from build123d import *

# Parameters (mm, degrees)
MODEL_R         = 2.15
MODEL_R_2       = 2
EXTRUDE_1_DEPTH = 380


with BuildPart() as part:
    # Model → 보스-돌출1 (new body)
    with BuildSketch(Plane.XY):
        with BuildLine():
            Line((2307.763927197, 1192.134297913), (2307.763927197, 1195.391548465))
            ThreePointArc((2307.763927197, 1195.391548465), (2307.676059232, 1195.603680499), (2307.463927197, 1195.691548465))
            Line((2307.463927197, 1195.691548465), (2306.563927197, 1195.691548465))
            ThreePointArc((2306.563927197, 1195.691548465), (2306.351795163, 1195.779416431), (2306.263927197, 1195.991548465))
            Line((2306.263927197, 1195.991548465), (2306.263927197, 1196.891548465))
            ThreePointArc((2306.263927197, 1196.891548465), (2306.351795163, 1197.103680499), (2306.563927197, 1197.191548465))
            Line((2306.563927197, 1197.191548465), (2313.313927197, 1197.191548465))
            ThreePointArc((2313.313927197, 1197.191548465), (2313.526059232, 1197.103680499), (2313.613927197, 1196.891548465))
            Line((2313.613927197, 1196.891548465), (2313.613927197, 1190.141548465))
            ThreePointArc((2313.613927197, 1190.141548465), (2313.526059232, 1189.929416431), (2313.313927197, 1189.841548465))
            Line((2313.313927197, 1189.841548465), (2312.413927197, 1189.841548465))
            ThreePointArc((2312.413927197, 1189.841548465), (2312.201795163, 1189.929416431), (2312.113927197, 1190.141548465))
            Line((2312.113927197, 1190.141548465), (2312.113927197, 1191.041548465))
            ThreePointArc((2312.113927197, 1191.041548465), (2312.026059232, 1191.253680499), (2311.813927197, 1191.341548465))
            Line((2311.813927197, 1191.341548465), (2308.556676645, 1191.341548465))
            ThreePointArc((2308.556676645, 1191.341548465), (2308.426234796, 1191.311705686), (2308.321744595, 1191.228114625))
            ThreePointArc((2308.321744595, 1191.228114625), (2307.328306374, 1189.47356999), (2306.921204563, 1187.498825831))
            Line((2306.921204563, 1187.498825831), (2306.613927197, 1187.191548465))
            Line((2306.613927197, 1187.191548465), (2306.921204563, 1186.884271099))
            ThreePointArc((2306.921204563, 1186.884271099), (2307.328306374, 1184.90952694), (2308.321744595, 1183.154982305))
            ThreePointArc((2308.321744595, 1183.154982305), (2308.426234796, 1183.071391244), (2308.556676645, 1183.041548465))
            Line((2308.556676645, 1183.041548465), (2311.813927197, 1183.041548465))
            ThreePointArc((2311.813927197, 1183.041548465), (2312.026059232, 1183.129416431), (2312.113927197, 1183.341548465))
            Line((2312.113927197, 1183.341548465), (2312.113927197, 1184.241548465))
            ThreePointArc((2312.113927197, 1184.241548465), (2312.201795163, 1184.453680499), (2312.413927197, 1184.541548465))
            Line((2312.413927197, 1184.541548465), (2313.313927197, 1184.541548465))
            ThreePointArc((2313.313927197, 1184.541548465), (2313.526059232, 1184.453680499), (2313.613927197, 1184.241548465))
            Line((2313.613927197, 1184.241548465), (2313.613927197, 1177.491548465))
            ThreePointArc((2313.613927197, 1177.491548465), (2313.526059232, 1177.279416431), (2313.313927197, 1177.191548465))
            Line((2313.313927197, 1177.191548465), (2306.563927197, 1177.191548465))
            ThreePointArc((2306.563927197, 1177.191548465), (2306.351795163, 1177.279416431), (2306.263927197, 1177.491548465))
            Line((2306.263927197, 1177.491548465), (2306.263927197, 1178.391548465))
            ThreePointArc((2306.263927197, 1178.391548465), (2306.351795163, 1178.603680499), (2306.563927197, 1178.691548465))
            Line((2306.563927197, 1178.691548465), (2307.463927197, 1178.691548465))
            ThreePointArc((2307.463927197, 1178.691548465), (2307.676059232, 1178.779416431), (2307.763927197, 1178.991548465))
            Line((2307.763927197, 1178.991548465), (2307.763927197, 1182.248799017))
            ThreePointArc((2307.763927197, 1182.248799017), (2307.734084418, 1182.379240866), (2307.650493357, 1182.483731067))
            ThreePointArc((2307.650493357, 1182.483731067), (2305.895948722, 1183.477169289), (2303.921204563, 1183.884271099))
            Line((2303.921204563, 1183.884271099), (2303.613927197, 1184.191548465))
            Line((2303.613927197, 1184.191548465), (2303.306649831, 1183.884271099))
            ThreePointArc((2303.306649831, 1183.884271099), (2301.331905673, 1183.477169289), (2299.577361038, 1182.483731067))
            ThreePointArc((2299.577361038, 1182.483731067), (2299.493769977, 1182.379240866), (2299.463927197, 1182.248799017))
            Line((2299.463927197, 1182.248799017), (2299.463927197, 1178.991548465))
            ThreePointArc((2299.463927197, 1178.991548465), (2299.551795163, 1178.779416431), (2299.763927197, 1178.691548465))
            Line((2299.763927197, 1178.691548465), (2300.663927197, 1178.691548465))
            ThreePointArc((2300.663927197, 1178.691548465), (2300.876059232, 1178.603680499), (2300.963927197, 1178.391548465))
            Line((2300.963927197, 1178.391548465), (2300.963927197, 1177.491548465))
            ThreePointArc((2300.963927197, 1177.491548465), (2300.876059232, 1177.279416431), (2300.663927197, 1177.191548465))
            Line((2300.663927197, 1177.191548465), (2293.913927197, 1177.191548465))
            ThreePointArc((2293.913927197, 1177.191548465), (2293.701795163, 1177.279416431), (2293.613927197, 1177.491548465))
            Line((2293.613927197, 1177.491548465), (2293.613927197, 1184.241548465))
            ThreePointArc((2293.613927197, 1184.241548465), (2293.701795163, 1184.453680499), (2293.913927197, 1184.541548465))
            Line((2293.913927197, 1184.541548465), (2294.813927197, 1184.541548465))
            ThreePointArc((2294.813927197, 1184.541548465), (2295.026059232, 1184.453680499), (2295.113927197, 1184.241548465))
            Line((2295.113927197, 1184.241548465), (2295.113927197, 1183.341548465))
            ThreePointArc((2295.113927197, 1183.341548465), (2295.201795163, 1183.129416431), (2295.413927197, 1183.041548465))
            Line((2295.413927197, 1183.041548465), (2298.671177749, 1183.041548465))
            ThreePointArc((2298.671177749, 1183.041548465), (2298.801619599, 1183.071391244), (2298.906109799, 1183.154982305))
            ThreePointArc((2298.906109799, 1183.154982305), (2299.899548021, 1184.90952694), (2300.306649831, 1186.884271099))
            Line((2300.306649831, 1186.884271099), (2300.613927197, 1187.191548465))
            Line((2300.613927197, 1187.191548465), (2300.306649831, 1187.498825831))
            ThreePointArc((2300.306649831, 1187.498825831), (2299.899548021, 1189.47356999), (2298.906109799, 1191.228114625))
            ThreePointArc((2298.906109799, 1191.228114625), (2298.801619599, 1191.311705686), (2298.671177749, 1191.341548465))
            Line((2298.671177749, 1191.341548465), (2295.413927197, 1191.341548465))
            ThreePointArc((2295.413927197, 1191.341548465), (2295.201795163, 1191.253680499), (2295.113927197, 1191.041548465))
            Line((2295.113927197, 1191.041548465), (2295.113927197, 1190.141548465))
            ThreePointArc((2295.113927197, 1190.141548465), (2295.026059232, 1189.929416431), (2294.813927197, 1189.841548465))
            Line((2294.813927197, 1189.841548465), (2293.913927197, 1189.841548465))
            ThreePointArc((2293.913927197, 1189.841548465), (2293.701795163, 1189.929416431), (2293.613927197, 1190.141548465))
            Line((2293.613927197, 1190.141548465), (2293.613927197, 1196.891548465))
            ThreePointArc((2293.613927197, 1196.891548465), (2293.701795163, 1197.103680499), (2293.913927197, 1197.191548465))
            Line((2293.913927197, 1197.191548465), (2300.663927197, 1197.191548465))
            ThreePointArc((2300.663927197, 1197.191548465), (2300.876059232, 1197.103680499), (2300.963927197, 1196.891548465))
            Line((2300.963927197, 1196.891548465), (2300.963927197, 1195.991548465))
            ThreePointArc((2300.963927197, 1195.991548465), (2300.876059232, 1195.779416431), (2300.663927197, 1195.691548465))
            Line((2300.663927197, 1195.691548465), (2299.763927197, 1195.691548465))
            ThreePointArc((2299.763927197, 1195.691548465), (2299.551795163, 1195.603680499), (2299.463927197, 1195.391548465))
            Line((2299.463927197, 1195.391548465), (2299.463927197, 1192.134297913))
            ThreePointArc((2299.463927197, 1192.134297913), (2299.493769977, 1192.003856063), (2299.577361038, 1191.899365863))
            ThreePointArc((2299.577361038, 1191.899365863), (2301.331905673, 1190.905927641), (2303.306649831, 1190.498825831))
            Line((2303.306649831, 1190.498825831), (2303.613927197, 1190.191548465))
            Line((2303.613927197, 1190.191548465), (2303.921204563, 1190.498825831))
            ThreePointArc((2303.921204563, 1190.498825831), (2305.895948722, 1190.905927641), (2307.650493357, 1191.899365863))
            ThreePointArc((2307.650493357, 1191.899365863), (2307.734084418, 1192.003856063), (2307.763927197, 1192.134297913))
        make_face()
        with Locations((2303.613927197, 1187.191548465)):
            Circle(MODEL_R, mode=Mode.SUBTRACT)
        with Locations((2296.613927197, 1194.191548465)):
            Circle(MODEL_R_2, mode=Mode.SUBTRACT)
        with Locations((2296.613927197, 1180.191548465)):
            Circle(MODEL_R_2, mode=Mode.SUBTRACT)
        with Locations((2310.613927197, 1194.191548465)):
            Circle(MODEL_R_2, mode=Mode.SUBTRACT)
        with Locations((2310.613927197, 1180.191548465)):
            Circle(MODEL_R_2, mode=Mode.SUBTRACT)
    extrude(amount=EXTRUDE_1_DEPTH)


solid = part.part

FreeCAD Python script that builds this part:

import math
import FreeCAD as App
import Part
import Sketcher

V = App.Vector
Q = App.Units.Quantity

doc = App.newDocument("Part")
params = doc.addObject("Spreadsheet::Sheet", "Params")
for row, (alias, value) in enumerate([
    ("sketch1_diameter", "4 mm"),
    ("sketch1_diameter2", "4.3 mm"),
    ("sketch1_radius", "0.3 mm"),
    ("sketch1_width", "0.9 mm"),
    ("sketch1_width2", "6.75 mm"),
    ("pad1_length", "380 mm"),
], start=1):
    params.set(f"A{row}", alias)
    params.set(f"B{row}", "=" + value)
    params.setAlias(f"B{row}", alias)

body = doc.addObject("PartDesign::Body", "Body")

sketch1 = doc.addObject("Sketcher::SketchObject", "Sketch")
body.addObject(sketch1)
sketch1.AttachmentSupport = (doc.XY_Plane, [""])
sketch1.MapMode = "FlatFace"
sketch1.addGeometry(Part.LineSegment(V(2307.763927, 1195.391548, 0), V(2307.763927, 1192.134298, 0)), False)
sketch1.addGeometry(Part.ArcOfCircle(Part.Circle(V(2307.463927, 1192.134298, 0), V(0, 0, 1), 0.3), math.radians(-51.545921), math.radians(0)), False)
sketch1.addGeometry(Part.ArcOfCircle(Part.Circle(V(2303.613927, 1196.982382, 0), V(0, 0, 1), 6.490833), math.radians(-87.286592), math.radians(-51.545921)), False)
sketch1.addGeometry(Part.LineSegment(V(2303.921205, 1190.498826, 0), V(2303.613927, 1190.191548, 0)), False)
sketch1.addGeometry(Part.LineSegment(V(2303.613927, 1190.191548, 0), V(2303.30665, 1190.498826, 0)), False)
sketch1.addGeometry(Part.ArcOfCircle(Part.Circle(V(2303.613927, 1196.982382, 0), V(0, 0, 1), 6.490833), math.radians(-128.454079), math.radians(-92.713408)), False)
sketch1.addGeometry(Part.ArcOfCircle(Part.Circle(V(2299.763927, 1192.134298, 0), V(0, 0, 1), 0.3), math.radians(-180), math.radians(-128.454079)), False)
sketch1.addGeometry(Part.LineSegment(V(2299.463927, 1192.134298, 0), V(2299.463927, 1195.391548, 0)), False)
sketch1.addGeometry(Part.ArcOfCircle(Part.Circle(V(2299.763927, 1195.391548, 0), V(0, 0, 1), 0.3), math.radians(90), math.radians(180)), False)
sketch1.addGeometry(Part.LineSegment(V(2299.763927, 1195.691548, 0), V(2300.663927, 1195.691548, 0)), False)
sketch1.addGeometry(Part.ArcOfCircle(Part.Circle(V(2300.663927, 1195.991548, 0), V(0, 0, 1), 0.3), math.radians(-90), math.radians(0)), False)
sketch1.addGeometry(Part.LineSegment(V(2300.963927, 1195.991548, 0), V(2300.963927, 1196.891548, 0)), False)
sketch1.addGeometry(Part.ArcOfCircle(Part.Circle(V(2300.663927, 1196.891548, 0), V(0, 0, 1), 0.3), math.radians(0), math.radians(90)), False)
sketch1.addGeometry(Part.LineSegment(V(2300.663927, 1197.191548, 0), V(2293.913927, 1197.191548, 0)), False)
sketch1.addGeometry(Part.ArcOfCircle(Part.Circle(V(2293.913927, 1196.891548, 0), V(0, 0, 1), 0.3), math.radians(90), math.radians(180)), False)
sketch1.addGeometry(Part.LineSegment(V(2293.613927, 1196.891548, 0), V(2293.613927, 1190.141548, 0)), False)
sketch1.addGeometry(Part.ArcOfCircle(Part.Circle(V(2293.913927, 1190.141548, 0), V(0, 0, 1), 0.3), math.radians(-180), math.radians(-90)), False)
sketch1.addGeometry(Part.LineSegment(V(2293.913927, 1189.841548, 0), V(2294.813927, 1189.841548, 0)), False)
sketch1.addGeometry(Part.ArcOfCircle(Part.Circle(V(2294.813927, 1190.141548, 0), V(0, 0, 1), 0.3), math.radians(-90), math.radians(0)), False)
sketch1.addGeometry(Part.LineSegment(V(2295.113927, 1190.141548, 0), V(2295.113927, 1191.041548, 0)), False)
sketch1.addGeometry(Part.ArcOfCircle(Part.Circle(V(2295.413927, 1191.041548, 0), V(0, 0, 1), 0.3), math.radians(90), math.radians(180)), False)
sketch1.addGeometry(Part.LineSegment(V(2295.413927, 1191.341548, 0), V(2298.671178, 1191.341548, 0)), False)
sketch1.addGeometry(Part.ArcOfCircle(Part.Circle(V(2298.671178, 1191.041548, 0), V(0, 0, 1), 0.3), math.radians(38.454079), math.radians(90)), False)
sketch1.addGeometry(Part.ArcOfCircle(Part.Circle(V(2293.823094, 1187.191548, 0), V(0, 0, 1), 6.490833), math.radians(2.713408), math.radians(38.454079)), False)
sketch1.addGeometry(Part.LineSegment(V(2300.30665, 1187.498826, 0), V(2300.613927, 1187.191548, 0)), False)
sketch1.addGeometry(Part.LineSegment(V(2300.613927, 1187.191548, 0), V(2300.30665, 1186.884271, 0)), False)
sketch1.addGeometry(Part.ArcOfCircle(Part.Circle(V(2293.823094, 1187.191548, 0), V(0, 0, 1), 6.490833), math.radians(-38.454079), math.radians(-2.713408)), False)
sketch1.addGeometry(Part.ArcOfCircle(Part.Circle(V(2298.671178, 1183.341548, 0), V(0, 0, 1), 0.3), math.radians(-90), math.radians(-38.454079)), False)
sketch1.addGeometry(Part.LineSegment(V(2298.671178, 1183.041548, 0), V(2295.413927, 1183.041548, 0)), False)
sketch1.addGeometry(Part.ArcOfCircle(Part.Circle(V(2295.413927, 1183.341548, 0), V(0, 0, 1), 0.3), math.radians(-180), math.radians(-90)), False)
sketch1.addGeometry(Part.LineSegment(V(2295.113927, 1183.341548, 0), V(2295.113927, 1184.241548, 0)), False)
sketch1.addGeometry(Part.ArcOfCircle(Part.Circle(V(2294.813927, 1184.241548, 0), V(0, 0, 1), 0.3), math.radians(0), math.radians(90)), False)
sketch1.addGeometry(Part.LineSegment(V(2294.813927, 1184.541548, 0), V(2293.913927, 1184.541548, 0)), False)
sketch1.addGeometry(Part.ArcOfCircle(Part.Circle(V(2293.913927, 1184.241548, 0), V(0, 0, 1), 0.3), math.radians(90), math.radians(180)), False)
sketch1.addGeometry(Part.LineSegment(V(2293.613927, 1184.241548, 0), V(2293.613927, 1177.491548, 0)), False)
sketch1.addGeometry(Part.ArcOfCircle(Part.Circle(V(2293.913927, 1177.491548, 0), V(0, 0, 1), 0.3), math.radians(-180), math.radians(-90)), False)
sketch1.addGeometry(Part.LineSegment(V(2293.913927, 1177.191548, 0), V(2300.663927, 1177.191548, 0)), False)
sketch1.addGeometry(Part.ArcOfCircle(Part.Circle(V(2300.663927, 1177.491548, 0), V(0, 0, 1), 0.3), math.radians(-90), math.radians(0)), False)
sketch1.addGeometry(Part.LineSegment(V(2300.963927, 1177.491548, 0), V(2300.963927, 1178.391548, 0)), False)
sketch1.addGeometry(Part.ArcOfCircle(Part.Circle(V(2300.663927, 1178.391548, 0), V(0, 0, 1), 0.3), math.radians(0), math.radians(90)), False)
sketch1.addGeometry(Part.LineSegment(V(2300.663927, 1178.691548, 0), V(2299.763927, 1178.691548, 0)), False)
sketch1.addGeometry(Part.ArcOfCircle(Part.Circle(V(2299.763927, 1178.991548, 0), V(0, 0, 1), 0.3), math.radians(-180), math.radians(-90)), False)
sketch1.addGeometry(Part.LineSegment(V(2299.463927, 1178.991548, 0), V(2299.463927, 1182.248799, 0)), False)
sketch1.addGeometry(Part.ArcOfCircle(Part.Circle(V(2299.763927, 1182.248799, 0), V(0, 0, 1), 0.3), math.radians(128.45408), math.radians(179.999999)), False)
sketch1.addGeometry(Part.ArcOfCircle(Part.Circle(V(2303.613927, 1177.400715, 0), V(0, 0, 1), 6.490833), math.radians(92.713408), math.radians(128.454079)), False)
sketch1.addGeometry(Part.LineSegment(V(2303.30665, 1183.884271, 0), V(2303.613927, 1184.191548, 0)), False)
sketch1.addGeometry(Part.LineSegment(V(2303.613927, 1184.191548, 0), V(2303.921205, 1183.884271, 0)), False)
sketch1.addGeometry(Part.ArcOfCircle(Part.Circle(V(2303.613927, 1177.400715, 0), V(0, 0, 1), 6.490833), math.radians(51.545921), math.radians(87.286592)), False)
sketch1.addGeometry(Part.ArcOfCircle(Part.Circle(V(2307.463927, 1182.248799, 0), V(0, 0, 1), 0.3), math.radians(0), math.radians(51.545921)), False)
sketch1.addGeometry(Part.LineSegment(V(2307.763927, 1182.248799, 0), V(2307.763927, 1178.991548, 0)), False)
sketch1.addGeometry(Part.ArcOfCircle(Part.Circle(V(2307.463927, 1178.991548, 0), V(0, 0, 1), 0.3), math.radians(-90), math.radians(0)), False)
sketch1.addGeometry(Part.LineSegment(V(2307.463927, 1178.691548, 0), V(2306.563927, 1178.691548, 0)), False)
sketch1.addGeometry(Part.ArcOfCircle(Part.Circle(V(2306.563927, 1178.391548, 0), V(0, 0, 1), 0.3), math.radians(90), math.radians(180)), False)
sketch1.addGeometry(Part.LineSegment(V(2306.263927, 1178.391548, 0), V(2306.263927, 1177.491548, 0)), False)
sketch1.addGeometry(Part.ArcOfCircle(Part.Circle(V(2306.563927, 1177.491548, 0), V(0, 0, 1), 0.3), math.radians(-180), math.radians(-90)), False)
sketch1.addGeometry(Part.LineSegment(V(2306.563927, 1177.191548, 0), V(2313.313927, 1177.191548, 0)), False)
sketch1.addGeometry(Part.ArcOfCircle(Part.Circle(V(2313.313927, 1177.491548, 0), V(0, 0, 1), 0.3), math.radians(-90), math.radians(0)), False)
sketch1.addGeometry(Part.LineSegment(V(2313.613927, 1177.491548, 0), V(2313.613927, 1184.241548, 0)), False)
sketch1.addGeometry(Part.ArcOfCircle(Part.Circle(V(2313.313927, 1184.241548, 0), V(0, 0, 1), 0.3), math.radians(0), math.radians(90)), False)
sketch1.addGeometry(Part.LineSegment(V(2313.313927, 1184.541548, 0), V(2312.413927, 1184.541548, 0)), False)
sketch1.addGeometry(Part.ArcOfCircle(Part.Circle(V(2312.413927, 1184.241548, 0), V(0, 0, 1), 0.3), math.radians(90), math.radians(180)), False)
sketch1.addGeometry(Part.LineSegment(V(2312.113927, 1184.241548, 0), V(2312.113927, 1183.341548, 0)), False)
sketch1.addGeometry(Part.ArcOfCircle(Part.Circle(V(2311.813927, 1183.341548, 0), V(0, 0, 1), 0.3), math.radians(-90), math.radians(0)), False)
sketch1.addGeometry(Part.LineSegment(V(2311.813927, 1183.041548, 0), V(2308.556677, 1183.041548, 0)), False)
sketch1.addGeometry(Part.ArcOfCircle(Part.Circle(V(2308.556677, 1183.341548, 0), V(0, 0, 1), 0.3), math.radians(-141.545921), math.radians(-90)), False)
sketch1.addGeometry(Part.ArcOfCircle(Part.Circle(V(2313.404761, 1187.191548, 0), V(0, 0, 1), 6.490833), math.radians(-177.286592), math.radians(-141.545921)), False)
sketch1.addGeometry(Part.LineSegment(V(2306.921205, 1186.884271, 0), V(2306.613927, 1187.191548, 0)), False)
sketch1.addGeometry(Part.LineSegment(V(2306.613927, 1187.191548, 0), V(2306.921205, 1187.498826, 0)), False)
sketch1.addGeometry(Part.ArcOfCircle(Part.Circle(V(2313.404761, 1187.191548, 0), V(0, 0, 1), 6.490833), math.radians(141.545921), math.radians(177.286592)), False)
sketch1.addGeometry(Part.ArcOfCircle(Part.Circle(V(2308.556677, 1191.041548, 0), V(0, 0, 1), 0.3), math.radians(90), math.radians(141.545921)), False)
sketch1.addGeometry(Part.LineSegment(V(2308.556677, 1191.341548, 0), V(2311.813927, 1191.341548, 0)), False)
sketch1.addGeometry(Part.ArcOfCircle(Part.Circle(V(2311.813927, 1191.041548, 0), V(0, 0, 1), 0.3), math.radians(0), math.radians(90)), False)
sketch1.addGeometry(Part.LineSegment(V(2312.113927, 1191.041548, 0), V(2312.113927, 1190.141548, 0)), False)
sketch1.addGeometry(Part.ArcOfCircle(Part.Circle(V(2312.413927, 1190.141548, 0), V(0, 0, 1), 0.3), math.radians(-180), math.radians(-90)), False)
sketch1.addGeometry(Part.LineSegment(V(2312.413927, 1189.841548, 0), V(2313.313927, 1189.841548, 0)), False)
sketch1.addGeometry(Part.ArcOfCircle(Part.Circle(V(2313.313927, 1190.141548, 0), V(0, 0, 1), 0.3), math.radians(-90), math.radians(0)), False)
sketch1.addGeometry(Part.LineSegment(V(2313.613927, 1190.141548, 0), V(2313.613927, 1196.891548, 0)), False)
sketch1.addGeometry(Part.ArcOfCircle(Part.Circle(V(2313.313927, 1196.891548, 0), V(0, 0, 1), 0.3), math.radians(0), math.radians(90)), False)
sketch1.addGeometry(Part.LineSegment(V(2313.313927, 1197.191548, 0), V(2306.563927, 1197.191548, 0)), False)
sketch1.addGeometry(Part.ArcOfCircle(Part.Circle(V(2306.563927, 1196.891548, 0), V(0, 0, 1), 0.3), math.radians(90), math.radians(180)), False)
sketch1.addGeometry(Part.LineSegment(V(2306.263927, 1196.891548, 0), V(2306.263927, 1195.991548, 0)), False)
sketch1.addGeometry(Part.ArcOfCircle(Part.Circle(V(2306.563927, 1195.991548, 0), V(0, 0, 1), 0.3), math.radians(-180), math.radians(-90)), False)
sketch1.addGeometry(Part.LineSegment(V(2306.563927, 1195.691548, 0), V(2307.463927, 1195.691548, 0)), False)
sketch1.addGeometry(Part.ArcOfCircle(Part.Circle(V(2307.463927, 1195.391548, 0), V(0, 0, 1), 0.3), math.radians(0), math.radians(90)), False)
sketch1.addGeometry(Part.Circle(V(2310.613927, 1180.191548, 0), V(0, 0, 1), 2), False)
sketch1.addGeometry(Part.Circle(V(2296.613927, 1180.191548, 0), V(0, 0, 1), 2), False)
sketch1.addGeometry(Part.Circle(V(2310.613927, 1194.191548, 0), V(0, 0, 1), 2), False)
sketch1.addGeometry(Part.Circle(V(2303.613927, 1187.191548, 0), V(0, 0, 1), 2.15), False)
sketch1.addGeometry(Part.Circle(V(2296.613927, 1194.191548, 0), V(0, 0, 1), 2), False)
sketch1.addConstraint(Sketcher.Constraint("Tangent", 0, 2, 1, 2))
sketch1.addConstraint(Sketcher.Constraint("Tangent", 1, 1, 2, 2))
sketch1.addConstraint(Sketcher.Constraint("Coincident", 2, 1, 3, 1))
sketch1.addConstraint(Sketcher.Constraint("Coincident", 3, 2, 4, 1))
sketch1.addConstraint(Sketcher.Constraint("Coincident", 4, 2, 5, 2))
sketch1.addConstraint(Sketcher.Constraint("Tangent", 5, 1, 6, 2))
sketch1.addConstraint(Sketcher.Constraint("Tangent", 6, 1, 7, 1))
sketch1.addConstraint(Sketcher.Constraint("Tangent", 7, 2, 8, 2))
sketch1.addConstraint(Sketcher.Constraint("Tangent", 8, 1, 9, 1))
sketch1.addConstraint(Sketcher.Constraint("Tangent", 9, 2, 10, 1))
sketch1.addConstraint(Sketcher.Constraint("Tangent", 10, 2, 11, 1))
sketch1.addConstraint(Sketcher.Constraint("Tangent", 11, 2, 12, 1))
sketch1.addConstraint(Sketcher.Constraint("Tangent", 12, 2, 13, 1))
sketch1.addConstraint(Sketcher.Constraint("Tangent", 13, 2, 14, 1))
sketch1.addConstraint(Sketcher.Constraint("Tangent", 14, 2, 15, 1))
sketch1.addConstraint(Sketcher.Constraint("Tangent", 15, 2, 16, 1))
sketch1.addConstraint(Sketcher.Constraint("Tangent", 16, 2, 17, 1))
sketch1.addConstraint(Sketcher.Constraint("Tangent", 17, 2, 18, 1))
sketch1.addConstraint(Sketcher.Constraint("Tangent", 18, 2, 19, 1))
sketch1.addConstraint(Sketcher.Constraint("Tangent", 19, 2, 20, 2))
sketch1.addConstraint(Sketcher.Constraint("Tangent", 20, 1, 21, 1))
sketch1.addConstraint(Sketcher.Constraint("Tangent", 21, 2, 22, 2))
sketch1.addConstraint(Sketcher.Constraint("Tangent", 22, 1, 23, 2))
sketch1.addConstraint(Sketcher.Constraint("Coincident", 23, 1, 24, 1))
sketch1.addConstraint(Sketcher.Constraint("Coincident", 24, 2, 25, 1))
sketch1.addConstraint(Sketcher.Constraint("Coincident", 25, 2, 26, 2))
sketch1.addConstraint(Sketcher.Constraint("Tangent", 26, 1, 27, 2))
sketch1.addConstraint(Sketcher.Constraint("Tangent", 27, 1, 28, 1))
sketch1.addConstraint(Sketcher.Constraint("Tangent", 28, 2, 29, 2))
sketch1.addConstraint(Sketcher.Constraint("Tangent", 29, 1, 30, 1))
sketch1.addConstraint(Sketcher.Constraint("Tangent", 30, 2, 31, 1))
sketch1.addConstraint(Sketcher.Constraint("Tangent", 31, 2, 32, 1))
sketch1.addConstraint(Sketcher.Constraint("Tangent", 32, 2, 33, 1))
sketch1.addConstraint(Sketcher.Constraint("Tangent", 33, 2, 34, 1))
sketch1.addConstraint(Sketcher.Constraint("Tangent", 34, 2, 35, 1))
sketch1.addConstraint(Sketcher.Constraint("Tangent", 35, 2, 36, 1))
sketch1.addConstraint(Sketcher.Constraint("Tangent", 36, 2, 37, 1))
sketch1.addConstraint(Sketcher.Constraint("Tangent", 37, 2, 38, 1))
sketch1.addConstraint(Sketcher.Constraint("Tangent", 38, 2, 39, 1))
sketch1.addConstraint(Sketcher.Constraint("Tangent", 39, 2, 40, 1))
sketch1.addConstraint(Sketcher.Constraint("Tangent", 40, 2, 41, 2))
sketch1.addConstraint(Sketcher.Constraint("Tangent", 41, 1, 42, 1))
sketch1.addConstraint(Sketcher.Constraint("Tangent", 42, 2, 43, 2))
sketch1.addConstraint(Sketcher.Constraint("Tangent", 43, 1, 44, 2))
sketch1.addConstraint(Sketcher.Constraint("Coincident", 44, 1, 45, 1))
sketch1.addConstraint(Sketcher.Constraint("Coincident", 45, 2, 46, 1))
sketch1.addConstraint(Sketcher.Constraint("Coincident", 46, 2, 47, 2))
sketch1.addConstraint(Sketcher.Constraint("Tangent", 47, 1, 48, 2))
sketch1.addConstraint(Sketcher.Constraint("Tangent", 48, 1, 49, 1))
sketch1.addConstraint(Sketcher.Constraint("Tangent", 49, 2, 50, 2))
sketch1.addConstraint(Sketcher.Constraint("Tangent", 50, 1, 51, 1))
sketch1.addConstraint(Sketcher.Constraint("Tangent", 51, 2, 52, 1))
sketch1.addConstraint(Sketcher.Constraint("Tangent", 52, 2, 53, 1))
sketch1.addConstraint(Sketcher.Constraint("Tangent", 53, 2, 54, 1))
sketch1.addConstraint(Sketcher.Constraint("Tangent", 54, 2, 55, 1))
sketch1.addConstraint(Sketcher.Constraint("Tangent", 55, 2, 56, 1))
sketch1.addConstraint(Sketcher.Constraint("Tangent", 56, 2, 57, 1))
sketch1.addConstraint(Sketcher.Constraint("Tangent", 57, 2, 58, 1))
sketch1.addConstraint(Sketcher.Constraint("Tangent", 58, 2, 59, 1))
sketch1.addConstraint(Sketcher.Constraint("Tangent", 59, 2, 60, 1))
sketch1.addConstraint(Sketcher.Constraint("Tangent", 60, 2, 61, 1))
sketch1.addConstraint(Sketcher.Constraint("Tangent", 61, 2, 62, 2))
sketch1.addConstraint(Sketcher.Constraint("Tangent", 62, 1, 63, 1))
sketch1.addConstraint(Sketcher.Constraint("Tangent", 63, 2, 64, 2))
sketch1.addConstraint(Sketcher.Constraint("Tangent", 64, 1, 65, 2))
sketch1.addConstraint(Sketcher.Constraint("Coincident", 65, 1, 66, 1))
sketch1.addConstraint(Sketcher.Constraint("Coincident", 66, 2, 67, 1))
sketch1.addConstraint(Sketcher.Constraint("Coincident", 67, 2, 68, 2))
sketch1.addConstraint(Sketcher.Constraint("Tangent", 68, 1, 69, 2))
sketch1.addConstraint(Sketcher.Constraint("Tangent", 69, 1, 70, 1))
sketch1.addConstraint(Sketcher.Constraint("Tangent", 70, 2, 71, 2))
sketch1.addConstraint(Sketcher.Constraint("Tangent", 71, 1, 72, 1))
sketch1.addConstraint(Sketcher.Constraint("Tangent", 72, 2, 73, 1))
sketch1.addConstraint(Sketcher.Constraint("Tangent", 73, 2, 74, 1))
sketch1.addConstraint(Sketcher.Constraint("Tangent", 74, 2, 75, 1))
sketch1.addConstraint(Sketcher.Constraint("Tangent", 75, 2, 76, 1))
sketch1.addConstraint(Sketcher.Constraint("Tangent", 76, 2, 77, 1))
sketch1.addConstraint(Sketcher.Constraint("Tangent", 77, 2, 78, 1))
sketch1.addConstraint(Sketcher.Constraint("Tangent", 78, 2, 79, 1))
sketch1.addConstraint(Sketcher.Constraint("Tangent", 79, 2, 80, 1))
sketch1.addConstraint(Sketcher.Constraint("Tangent", 80, 2, 81, 1))
sketch1.addConstraint(Sketcher.Constraint("Tangent", 81, 2, 82, 1))
sketch1.addConstraint(Sketcher.Constraint("Tangent", 82, 2, 83, 2))
sketch1.addConstraint(Sketcher.Constraint("Tangent", 83, 1, 0, 1))
sketch1.addConstraint(Sketcher.Constraint("Vertical", 0))
sketch1.addConstraint(Sketcher.Constraint("Vertical", 7))
sketch1.addConstraint(Sketcher.Constraint("Horizontal", 9))
sketch1.addConstraint(Sketcher.Constraint("Vertical", 11))
sketch1.addConstraint(Sketcher.Constraint("Horizontal", 13))
sketch1.addConstraint(Sketcher.Constraint("Vertical", 15))
sketch1.addConstraint(Sketcher.Constraint("Horizontal", 17))
sketch1.addConstraint(Sketcher.Constraint("Vertical", 19))
sketch1.addConstraint(Sketcher.Constraint("Horizontal", 21))
sketch1.addConstraint(Sketcher.Constraint("Horizontal", 28))
sketch1.addConstraint(Sketcher.Constraint("Vertical", 30))
sketch1.addConstraint(Sketcher.Constraint("Horizontal", 32))
sketch1.addConstraint(Sketcher.Constraint("Vertical", 34))
sketch1.addConstraint(Sketcher.Constraint("Horizontal", 36))
sketch1.addConstraint(Sketcher.Constraint("Vertical", 38))
sketch1.addConstraint(Sketcher.Constraint("Horizontal", 40))
sketch1.addConstraint(Sketcher.Constraint("Vertical", 42))
sketch1.addConstraint(Sketcher.Constraint("Vertical", 49))
sketch1.addConstraint(Sketcher.Constraint("Horizontal", 51))
sketch1.addConstraint(Sketcher.Constraint("Vertical", 53))
sketch1.addConstraint(Sketcher.Constraint("Horizontal", 55))
sketch1.addConstraint(Sketcher.Constraint("Vertical", 57))
sketch1.addConstraint(Sketcher.Constraint("Horizontal", 59))
sketch1.addConstraint(Sketcher.Constraint("Vertical", 61))
sketch1.addConstraint(Sketcher.Constraint("Horizontal", 63))
sketch1.addConstraint(Sketcher.Constraint("Horizontal", 70))
sketch1.addConstraint(Sketcher.Constraint("Vertical", 72))
sketch1.addConstraint(Sketcher.Constraint("Horizontal", 74))
sketch1.addConstraint(Sketcher.Constraint("Vertical", 76))
sketch1.addConstraint(Sketcher.Constraint("Horizontal", 78))
sketch1.addConstraint(Sketcher.Constraint("Vertical", 80))
sketch1.addConstraint(Sketcher.Constraint("Horizontal", 82))
sketch1.addConstraint(Sketcher.Constraint("Coincident", 5, 3, 2, 3))
sketch1.addConstraint(Sketcher.Constraint("Coincident", 26, 3, 23, 3))
sketch1.addConstraint(Sketcher.Constraint("Coincident", 47, 3, 44, 3))
sketch1.addConstraint(Sketcher.Constraint("Coincident", 68, 3, 65, 3))
sketch1.addConstraint(Sketcher.Constraint("Equal", 2, 5))
sketch1.addConstraint(Sketcher.Constraint("Equal", 1, 6))
sketch1.addConstraint(Sketcher.Constraint("Equal", 6, 8))
sketch1.addConstraint(Sketcher.Constraint("Equal", 8, 10))
sketch1.addConstraint(Sketcher.Constraint("Equal", 10, 12))
sketch1.addConstraint(Sketcher.Constraint("Equal", 12, 14))
sketch1.addConstraint(Sketcher.Constraint("Equal", 14, 16))
sketch1.addConstraint(Sketcher.Constraint("Equal", 16, 18))
sketch1.addConstraint(Sketcher.Constraint("Equal", 18, 20))
sketch1.addConstraint(Sketcher.Constraint("Equal", 20, 22))
sketch1.addConstraint(Sketcher.Constraint("Equal", 5, 23))
sketch1.addConstraint(Sketcher.Constraint("Equal", 23, 26))
sketch1.addConstraint(Sketcher.Constraint("Equal", 22, 27))
sketch1.addConstraint(Sketcher.Constraint("Equal", 27, 29))
sketch1.addConstraint(Sketcher.Constraint("Equal", 29, 31))
sketch1.addConstraint(Sketcher.Constraint("Equal", 31, 33))
sketch1.addConstraint(Sketcher.Constraint("Equal", 33, 35))
sketch1.addConstraint(Sketcher.Constraint("Equal", 35, 37))
sketch1.addConstraint(Sketcher.Constraint("Equal", 37, 39))
sketch1.addConstraint(Sketcher.Constraint("Equal", 39, 41))
sketch1.addConstraint(Sketcher.Constraint("Equal", 41, 43))
sketch1.addConstraint(Sketcher.Constraint("Equal", 26, 44))
sketch1.addConstraint(Sketcher.Constraint("Equal", 44, 47))
sketch1.addConstraint(Sketcher.Constraint("Equal", 43, 48))
sketch1.addConstraint(Sketcher.Constraint("Equal", 48, 50))
sketch1.addConstraint(Sketcher.Constraint("Equal", 50, 52))
sketch1.addConstraint(Sketcher.Constraint("Equal", 52, 54))
sketch1.addConstraint(Sketcher.Constraint("Equal", 54, 56))
sketch1.addConstraint(Sketcher.Constraint("Equal", 56, 58))
sketch1.addConstraint(Sketcher.Constraint("Equal", 58, 60))
sketch1.addConstraint(Sketcher.Constraint("Equal", 60, 62))
sketch1.addConstraint(Sketcher.Constraint("Equal", 62, 64))
sketch1.addConstraint(Sketcher.Constraint("Equal", 47, 65))
sketch1.addConstraint(Sketcher.Constraint("Equal", 65, 68))
sketch1.addConstraint(Sketcher.Constraint("Equal", 64, 69))
sketch1.addConstraint(Sketcher.Constraint("Equal", 69, 71))
sketch1.addConstraint(Sketcher.Constraint("Equal", 71, 73))
sketch1.addConstraint(Sketcher.Constraint("Equal", 73, 75))
sketch1.addConstraint(Sketcher.Constraint("Equal", 75, 77))
sketch1.addConstraint(Sketcher.Constraint("Equal", 77, 79))
sketch1.addConstraint(Sketcher.Constraint("Equal", 79, 81))
sketch1.addConstraint(Sketcher.Constraint("Equal", 81, 83))
sketch1.addConstraint(Sketcher.Constraint("Equal", 84, 85))
sketch1.addConstraint(Sketcher.Constraint("Equal", 85, 86))
sketch1.addConstraint(Sketcher.Constraint("Equal", 86, 88))
sketch1.addConstraint(Sketcher.Constraint("Perpendicular", 3, 4))
sketch1.addConstraint(Sketcher.Constraint("Parallel", 4, 24))
sketch1.addConstraint(Sketcher.Constraint("Perpendicular", 24, 25))
sketch1.addConstraint(Sketcher.Constraint("Parallel", 25, 45))
sketch1.addConstraint(Sketcher.Constraint("Perpendicular", 45, 46))
sketch1.addConstraint(Sketcher.Constraint("Parallel", 46, 66))
sketch1.addConstraint(Sketcher.Constraint("Perpendicular", 66, 67))
sketch1.addConstraint(Sketcher.Constraint("Horizontal", 1, 3, 6, 3))
sketch1.addConstraint(Sketcher.Constraint("Horizontal", 43, 3, 48, 3))
sketch1.addConstraint(Sketcher.Constraint("Horizontal", 41, 3, 50, 3))
sketch1.addConstraint(Sketcher.Constraint("Horizontal", 37, 3, 54, 3))
sketch1.addConstraint(Sketcher.Constraint("Horizontal", 33, 3, 58, 3))
sketch1.addConstraint(Sketcher.Constraint("Horizontal", 29, 3, 62, 3))
sketch1.addConstraint(Sketcher.Constraint("Horizontal", 26, 3, 65, 3))
sketch1.addConstraint(Sketcher.Constraint("Horizontal", 22, 3, 69, 3))
sketch1.addConstraint(Sketcher.Constraint("Horizontal", 18, 3, 73, 3))
sketch1.addConstraint(Sketcher.Constraint("Horizontal", 14, 3, 77, 3))
sketch1.addConstraint(Sketcher.Constraint("Horizontal", 10, 3, 81, 3))
sketch1.addConstraint(Sketcher.Constraint("Horizontal", 84, 3, 85, 3))
sketch1.addConstraint(Sketcher.Constraint("Horizontal", 68, 3, 87, 3))
sketch1.addConstraint(Sketcher.Constraint("Horizontal", 86, 3, 88, 3))
sketch1.addConstraint(Sketcher.Constraint("Horizontal", 2, 1, 4, 2))
sketch1.addConstraint(Sketcher.Constraint("Horizontal", 87, 3, 24, 2))
sketch1.addConstraint(Sketcher.Constraint("Horizontal", 44, 1, 46, 2))
sketch1.addConstraint(Sketcher.Constraint("Horizontal", 25, 2, 65, 1))
sketch1.addConstraint(Sketcher.Constraint("Horizontal", 24, 2, 66, 2))
sketch1.addConstraint(Sketcher.Constraint("Horizontal", 23, 1, 67, 2))
sketch1.addConstraint(Sketcher.Constraint("Vertical", 22, 3, 27, 3))
sketch1.addConstraint(Sketcher.Constraint("Vertical", 20, 3, 29, 3))
sketch1.addConstraint(Sketcher.Constraint("Vertical", 16, 3, 33, 3))
sketch1.addConstraint(Sketcher.Constraint("Vertical", 12, 3, 37, 3))
sketch1.addConstraint(Sketcher.Constraint("Vertical", 8, 3, 41, 3))
sketch1.addConstraint(Sketcher.Constraint("Vertical", 5, 3, 44, 3))
sketch1.addConstraint(Sketcher.Constraint("Vertical", 62, 3, 71, 3))
sketch1.addConstraint(Sketcher.Constraint("Vertical", 58, 3, 75, 3))
sketch1.addConstraint(Sketcher.Constraint("Vertical", 54, 3, 79, 3))
sketch1.addConstraint(Sketcher.Constraint("Vertical", 84, 3, 86, 3))
sketch1.addConstraint(Sketcher.Constraint("Vertical", 47, 3, 87, 3))
sketch1.addConstraint(Sketcher.Constraint("Vertical", 85, 3, 88, 3))
sketch1.addConstraint(Sketcher.Constraint("Vertical", 4, 2, 44, 1))
sketch1.addConstraint(Sketcher.Constraint("Equal", 9, 17))
sketch1.addConstraint(Sketcher.Constraint("Equal", 40, 51))
sketch1.addConstraint(Sketcher.Constraint("Equal", 36, 55))
sketch1.addConstraint(Sketcher.Constraint("Equal", 51, 59))
sketch1.addConstraint(Sketcher.Constraint("Equal", 28, 63))
sketch1.addConstraint(Sketcher.Constraint("Equal", 70, 0))
sketch1.addConstraint(Sketcher.Constraint("Equal", 82, 11))
sketch1.addConstraint(Sketcher.Constraint("Equal", 78, 15))
sketch1.addConstraint(Sketcher.Constraint("Equal", 11, 19))
sketch1.addConstraint(Sketcher.Constraint("Equal", 19, 30))
sketch1.addConstraint(Sketcher.Constraint("Equal", 15, 34))
sketch1.addConstraint(Sketcher.Constraint("Equal", 30, 38))
sketch1.addConstraint(Sketcher.Constraint("Equal", 7, 42))
sketch1.addConstraint(Sketcher.Constraint("Equal", 4, 24))
sketch1.addConstraint(Sketcher.Constraint("Diameter", 84, Q("4 mm")))
sketch1.addConstraint(Sketcher.Constraint("Diameter", 87, Q("4.3 mm")))
sketch1.addConstraint(Sketcher.Constraint("Radius", 1, Q("0.3 mm")))
sketch1.addConstraint(Sketcher.Constraint("DistanceX", 9, 1, 9, 2, Q("0.9 mm")))
sketch1.addConstraint(Sketcher.Constraint("DistanceX", 13, 2, 13, 1, Q("6.75 mm")))
sketch1.addConstraint(Sketcher.Constraint("Radius", 2, Q("6.490833 mm")))
sketch1.addConstraint(Sketcher.Constraint("DistanceX", 21, 1, 21, 2, Q("3.257251 mm")))
sketch1.addConstraint(Sketcher.Constraint("DistanceY", -1, 1, 43, 3, Q("1182.248799 mm")))
sketch1.addConstraint(Sketcher.Constraint("DistanceY", -1, 1, 2, 3, Q("1196.982382 mm")))
sketch1.addConstraint(Sketcher.Constraint("DistanceY", -1, 1, 8, 3, Q("1195.391548 mm")))
sketch1.addConstraint(Sketcher.Constraint("DistanceX", -1, 1, 65, 3, Q("2313.404761 mm")))
sketch1.addConstraint(Sketcher.Constraint("DistanceY", -1, 1, 84, 3, Q("1180.191548 mm")))
sketch1.addConstraint(Sketcher.Constraint("DistanceY", -1, 1, 86, 3, Q("1194.191548 mm")))
sketch1.addConstraint(Sketcher.Constraint("DistanceY", -1, 1, 3, 2, Q("1190.191548 mm")))
sketch1.addConstraint(Sketcher.Constraint("DistanceX", -1, 1, 84, 3, Q("2310.613927 mm")))
sketch1.addConstraint(Sketcher.Constraint("DistanceX", -1, 1, 85, 3, Q("2296.613927 mm")))
sketch1.setExpression("Constraints[219]", "Params.sketch1_diameter")
sketch1.setExpression("Constraints[220]", "Params.sketch1_diameter2")
sketch1.setExpression("Constraints[221]", "Params.sketch1_radius")
sketch1.setExpression("Constraints[222]", "Params.sketch1_width")
sketch1.setExpression("Constraints[223]", "Params.sketch1_width2")
pad1 = doc.addObject("PartDesign::Pad", "Pad")
body.addObject(pad1)
pad1.Profile = sketch1
pad1.setExpression("Length", "Params.pad1_length")

doc.recompute()
